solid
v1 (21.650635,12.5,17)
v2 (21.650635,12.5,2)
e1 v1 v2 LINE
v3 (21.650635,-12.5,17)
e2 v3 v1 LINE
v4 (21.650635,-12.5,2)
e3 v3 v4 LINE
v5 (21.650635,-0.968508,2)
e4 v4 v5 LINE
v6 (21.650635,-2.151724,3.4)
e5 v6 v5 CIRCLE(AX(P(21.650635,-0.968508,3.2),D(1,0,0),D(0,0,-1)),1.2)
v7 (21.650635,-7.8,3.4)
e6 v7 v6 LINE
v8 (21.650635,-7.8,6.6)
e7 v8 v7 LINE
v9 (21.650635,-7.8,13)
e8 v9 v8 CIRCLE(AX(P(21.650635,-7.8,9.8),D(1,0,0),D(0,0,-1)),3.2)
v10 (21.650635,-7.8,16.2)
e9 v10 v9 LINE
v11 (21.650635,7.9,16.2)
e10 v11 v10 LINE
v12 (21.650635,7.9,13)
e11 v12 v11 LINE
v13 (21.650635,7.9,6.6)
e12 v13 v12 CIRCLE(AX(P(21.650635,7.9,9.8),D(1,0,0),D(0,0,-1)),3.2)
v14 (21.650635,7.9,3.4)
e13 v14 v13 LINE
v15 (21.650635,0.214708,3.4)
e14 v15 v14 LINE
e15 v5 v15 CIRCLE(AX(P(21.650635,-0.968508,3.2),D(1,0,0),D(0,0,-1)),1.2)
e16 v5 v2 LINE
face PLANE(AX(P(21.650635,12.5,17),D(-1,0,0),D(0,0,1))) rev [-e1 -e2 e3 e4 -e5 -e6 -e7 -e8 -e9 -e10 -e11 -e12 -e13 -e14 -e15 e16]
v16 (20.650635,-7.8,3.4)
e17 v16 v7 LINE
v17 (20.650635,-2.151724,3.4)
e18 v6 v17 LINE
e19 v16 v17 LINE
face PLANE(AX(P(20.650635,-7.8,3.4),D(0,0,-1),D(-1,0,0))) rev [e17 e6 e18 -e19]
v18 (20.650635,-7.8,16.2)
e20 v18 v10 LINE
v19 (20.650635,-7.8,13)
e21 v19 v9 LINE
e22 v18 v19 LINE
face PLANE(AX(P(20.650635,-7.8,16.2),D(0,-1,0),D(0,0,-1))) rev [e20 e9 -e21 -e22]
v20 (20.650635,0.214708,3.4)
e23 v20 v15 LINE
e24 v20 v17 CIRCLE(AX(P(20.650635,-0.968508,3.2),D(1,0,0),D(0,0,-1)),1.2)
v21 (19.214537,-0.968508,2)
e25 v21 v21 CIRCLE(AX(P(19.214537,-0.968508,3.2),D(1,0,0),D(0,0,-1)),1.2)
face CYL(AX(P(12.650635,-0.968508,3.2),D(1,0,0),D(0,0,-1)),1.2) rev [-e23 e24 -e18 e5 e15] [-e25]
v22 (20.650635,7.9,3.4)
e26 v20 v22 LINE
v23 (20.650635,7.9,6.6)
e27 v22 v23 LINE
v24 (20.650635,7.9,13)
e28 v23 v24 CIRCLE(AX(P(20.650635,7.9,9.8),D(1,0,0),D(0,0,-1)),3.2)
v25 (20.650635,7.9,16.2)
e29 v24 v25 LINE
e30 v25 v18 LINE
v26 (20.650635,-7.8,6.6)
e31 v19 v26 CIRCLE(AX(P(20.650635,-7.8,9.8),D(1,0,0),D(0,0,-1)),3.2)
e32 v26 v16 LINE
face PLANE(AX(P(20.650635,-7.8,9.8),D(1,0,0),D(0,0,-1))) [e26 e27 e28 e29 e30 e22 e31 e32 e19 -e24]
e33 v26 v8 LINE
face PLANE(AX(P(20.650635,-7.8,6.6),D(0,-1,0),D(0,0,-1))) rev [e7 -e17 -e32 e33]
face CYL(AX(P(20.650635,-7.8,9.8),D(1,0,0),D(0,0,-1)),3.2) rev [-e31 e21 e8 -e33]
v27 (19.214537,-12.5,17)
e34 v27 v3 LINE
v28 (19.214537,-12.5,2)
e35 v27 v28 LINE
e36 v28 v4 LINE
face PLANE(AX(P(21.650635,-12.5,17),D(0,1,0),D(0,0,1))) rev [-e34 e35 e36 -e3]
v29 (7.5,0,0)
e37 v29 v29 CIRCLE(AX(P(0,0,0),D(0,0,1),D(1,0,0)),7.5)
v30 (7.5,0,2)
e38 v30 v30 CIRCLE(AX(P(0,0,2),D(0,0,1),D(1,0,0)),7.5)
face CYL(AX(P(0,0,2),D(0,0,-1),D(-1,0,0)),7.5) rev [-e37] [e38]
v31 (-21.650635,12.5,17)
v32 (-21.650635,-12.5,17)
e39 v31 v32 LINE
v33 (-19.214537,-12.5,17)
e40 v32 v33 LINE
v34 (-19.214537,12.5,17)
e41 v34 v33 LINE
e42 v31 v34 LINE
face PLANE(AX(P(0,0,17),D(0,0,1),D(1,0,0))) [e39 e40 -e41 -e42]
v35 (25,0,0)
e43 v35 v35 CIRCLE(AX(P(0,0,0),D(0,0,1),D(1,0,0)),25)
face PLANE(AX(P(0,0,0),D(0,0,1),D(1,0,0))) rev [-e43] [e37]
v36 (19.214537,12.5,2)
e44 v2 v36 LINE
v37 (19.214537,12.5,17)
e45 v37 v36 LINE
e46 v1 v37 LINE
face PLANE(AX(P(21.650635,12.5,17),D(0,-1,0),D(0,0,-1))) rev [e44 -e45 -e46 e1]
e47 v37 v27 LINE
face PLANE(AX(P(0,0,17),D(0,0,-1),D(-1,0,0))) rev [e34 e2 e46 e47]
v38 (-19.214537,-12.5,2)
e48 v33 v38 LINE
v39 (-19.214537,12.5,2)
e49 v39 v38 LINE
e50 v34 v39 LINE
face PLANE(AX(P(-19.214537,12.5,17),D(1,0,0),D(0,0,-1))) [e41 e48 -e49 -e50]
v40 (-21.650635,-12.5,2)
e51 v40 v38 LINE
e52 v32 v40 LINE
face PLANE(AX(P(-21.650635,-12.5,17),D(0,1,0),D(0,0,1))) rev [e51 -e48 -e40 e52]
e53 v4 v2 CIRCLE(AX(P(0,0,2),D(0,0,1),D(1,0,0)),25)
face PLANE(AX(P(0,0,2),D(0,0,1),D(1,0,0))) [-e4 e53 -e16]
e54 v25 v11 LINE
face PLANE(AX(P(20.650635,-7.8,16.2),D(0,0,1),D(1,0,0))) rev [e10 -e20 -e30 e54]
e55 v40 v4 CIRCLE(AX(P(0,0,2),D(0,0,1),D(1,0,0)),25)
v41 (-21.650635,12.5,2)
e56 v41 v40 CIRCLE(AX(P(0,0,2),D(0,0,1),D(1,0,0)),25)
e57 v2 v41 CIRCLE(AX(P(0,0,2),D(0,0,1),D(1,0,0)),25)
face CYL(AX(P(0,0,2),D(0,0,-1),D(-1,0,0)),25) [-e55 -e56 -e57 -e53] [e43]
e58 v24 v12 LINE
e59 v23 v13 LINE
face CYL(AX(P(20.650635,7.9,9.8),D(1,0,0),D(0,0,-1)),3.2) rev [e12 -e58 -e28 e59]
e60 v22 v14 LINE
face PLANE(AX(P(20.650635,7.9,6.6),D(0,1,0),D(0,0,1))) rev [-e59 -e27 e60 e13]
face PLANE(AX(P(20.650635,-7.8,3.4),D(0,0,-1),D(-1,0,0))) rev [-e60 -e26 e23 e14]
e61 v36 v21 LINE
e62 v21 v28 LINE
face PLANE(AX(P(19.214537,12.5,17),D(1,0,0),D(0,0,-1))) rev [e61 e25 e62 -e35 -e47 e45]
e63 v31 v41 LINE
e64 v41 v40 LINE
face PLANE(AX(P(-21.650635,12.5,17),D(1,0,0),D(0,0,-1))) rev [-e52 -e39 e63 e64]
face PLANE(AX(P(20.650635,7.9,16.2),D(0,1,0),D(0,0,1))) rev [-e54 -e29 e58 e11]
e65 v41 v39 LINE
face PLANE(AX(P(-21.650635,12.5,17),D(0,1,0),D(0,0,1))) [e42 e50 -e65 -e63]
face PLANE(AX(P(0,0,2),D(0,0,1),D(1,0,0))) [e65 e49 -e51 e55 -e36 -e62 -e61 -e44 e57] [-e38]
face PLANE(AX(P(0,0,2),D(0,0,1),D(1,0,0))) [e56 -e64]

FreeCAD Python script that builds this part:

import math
import FreeCAD as App
import Part
import Sketcher
from FreeCAD import Vector
Q = App.Units.Quantity

doc = App.newDocument("Part")
body = doc.addObject("PartDesign::Body", "Body")

sketch1 = body.newObject("Sketcher::SketchObject", "Sketch")
sketch1.AttachmentSupport = (doc.getObject("XY_Plane"), [""])
sketch1.MapMode = "FlatFace"
sketch1.addGeometry([
    Part.Circle(Vector(0, 0, 0), Vector(0, 0, 1), 25),
    Part.Circle(Vector(0, 0, 0), Vector(0, 0, 1), 8),
], False)
sketch1.addConstraint([
    Sketcher.Constraint("Coincident", 0, 3, -1, 1),
    Sketcher.Constraint("Coincident", 1, 3, -1, 1),
    Sketcher.Constraint("Diameter", 0, Q("50 mm")),
    Sketcher.Constraint("Diameter", 1, Q("15 mm")),
])
pad1 = body.newObject("PartDesign::Pad", "Pad")
pad1.Profile = sketch1
pad1.Length = 2

sketch2 = body.newObject("Sketcher::SketchObject", "Sketch001")
sketch2.AttachmentSupport = (doc.getObject("XY_Plane"), [""])
sketch2.MapMode = "FlatFace"
sketch2.AttachmentOffset = App.Placement(Vector(0, 0, 2), App.Rotation())
sketch2.addGeometry([
    Part.LineSegment(Vector(-21.7, 12.5, 0), Vector(-21.7, -12.5, 0)),
    Part.LineSegment(Vector(-21.7, -12.5, 0), Vector(-19.2, -12.5, 0)),
    Part.LineSegment(Vector(-19.2, -12.5, 0), Vector(-19.2, 12.5, 0)),
    Part.LineSegment(Vector(-19.2, 12.5, 0), Vector(-21.7, 12.5, 0)),
], False)
sketch2.addConstraint([
    Sketcher.Constraint("Coincident", 0, 2, 1, 1),
    Sketcher.Constraint("Coincident", 1, 2, 2, 1),
    Sketcher.Constraint("Coincident", 2, 2, 3, 1),
    Sketcher.Constraint("Coincident", 3, 2, 0, 1),
    Sketcher.Constraint("Vertical", 0),
    Sketcher.Constraint("Horizontal", 1),
    Sketcher.Constraint("Vertical", 2),
    Sketcher.Constraint("Horizontal", 3),
    Sketcher.Constraint("DistanceY", 0, 2, 0, 1, Q("25 mm")),
    Sketcher.Constraint("DistanceY", 0, 2, -1, 1, Q("12.5 mm")),
    Sketcher.Constraint("DistanceX", 1, 1, 1, 2, Q("2.436098 mm")),
    Sketcher.Constraint("DistanceX", 0, 2, -1, 1, Q("21.650635 mm")),
])
pad2 = body.newObject("PartDesign::Pad", "Pad001")
pad2.Profile = sketch2
pad2.Length = 15

sketch3 = body.newObject("Sketcher::SketchObject", "Sketch002")
sketch3.AttachmentSupport = (doc.getObject("XY_Plane"), [""])
sketch3.MapMode = "FlatFace"
sketch3.AttachmentOffset = App.Placement(Vector(0, 0, 2), App.Rotation())
sketch3.addGeometry([
    Part.LineSegment(Vector(19.2, 12.5, 0), Vector(19.2, -12.5, 0)),
    Part.LineSegment(Vector(19.2, -12.5, 0), Vector(21.7, -12.5, 0)),
    Part.LineSegment(Vector(21.7, -12.5, 0), Vector(21.7, 12.5, 0)),
    Part.LineSegment(Vector(21.7, 12.5, 0), Vector(19.2, 12.5, 0)),
    Part.LineSegment(Vector(-21.7, 12.5, 0), Vector(-21.7, -12.5, 0)),
    Part.LineSegment(Vector(-21.7, -12.5, 0), Vector(-19.2, -12.5, 0)),
    Part.LineSegment(Vector(-19.2, -12.5, 0), Vector(-19.2, 12.5, 0)),
    Part.LineSegment(Vector(-19.2, 12.5, 0), Vector(-21.7, 12.5, 0)),
], False)
sketch3.addConstraint([
    Sketcher.Constraint("Coincident", 0, 2, 1, 1),
    Sketcher.Constraint("Coincident", 1, 2, 2, 1),
    Sketcher.Constraint("Coincident", 2, 2, 3, 1),
    Sketcher.Constraint("Coincident", 3, 2, 0, 1),
    Sketcher.Constraint("Coincident", 4, 2, 5, 1),
    Sketcher.Constraint("Coincident", 5, 2, 6, 1),
    Sketcher.Constraint("Coincident", 6, 2, 7, 1),
    Sketcher.Constraint("Coincident", 7, 2, 4, 1),
    Sketcher.Constraint("Vertical", 0),
    Sketcher.Constraint("Horizontal", 1),
    Sketcher.Constraint("Vertical", 2),
    Sketcher.Constraint("Horizontal", 3),
    Sketcher.Constraint("Vertical", 4),
    Sketcher.Constraint("Horizontal", 5),
    Sketcher.Constraint("Vertical", 6),
    Sketcher.Constraint("Horizontal", 7),
    Sketcher.Constraint("Symmetric", 2, 2, 4, 2, -1, 1),
    Sketcher.Constraint("Symmetric", 0, 2, 6, 2, -1, 1),
    Sketcher.Constraint("Horizontal", 1, 2, 4, 2),
    Sketcher.Constraint("DistanceY", 0, 2, 0, 1, Q("25 mm")),
    Sketcher.Constraint("DistanceX", 1, 1, 1, 2, Q("2.436098 mm")),
    Sketcher.Constraint("DistanceX", 4, 2, 1, 2, Q("43.30127 mm")),
])
pad3 = body.newObject("PartDesign::Pad", "Pad002")
pad3.Profile = sketch3
pad3.Length = 15

sketch4 = body.newObject("Sketcher::SketchObject", "Sketch003")
sketch4.AttachmentSupport = (doc.getObject("YZ_Plane"), [""])
sketch4.MapMode = "FlatFace"
sketch4.AttachmentOffset = App.Placement(Vector(0, 0, 21.650635), App.Rotation())
sketch4.addGeometry([
    Part.LineSegment(Vector(7.9, 16.2, 0), Vector(-7.8, 16.2, 0)),
    Part.LineSegment(Vector(-7.8, 16.2, 0), Vector(-7.8, 13, 0)),
    Part.ArcOfCircle(Part.Circle(Vector(-7.8, 9.8, 0), Vector(0, 0, 1), 3.2), math.radians(90), math.radians(270)),
    Part.LineSegment(Vector(-7.8, 6.6, 0), Vector(-7.8, 3.4, 0)),
    Part.LineSegment(Vector(-7.8, 3.4, 0), Vector(7.9, 3.4, 0)),
    Part.LineSegment(Vector(7.9, 3.4, 0), Vector(7.9, 6.6, 0)),
    Part.ArcOfCircle(Part.Circle(Vector(7.9, 9.8, 0), Vector(0, 0, 1), 3.2), math.radians(-90), math.radians(90)),
    Part.LineSegment(Vector(7.9, 13, 0), Vector(7.9, 16.2, 0)),
], False)
sketch4.addConstraint([
    Sketcher.Constraint("Coincident", 0, 2, 1, 1),
    Sketcher.Constraint("Coincident", 1, 2, 2, 1),
    Sketcher.Constraint("Coincident", 2, 2, 3, 1),
    Sketcher.Constraint("Coincident", 3, 2, 4, 1),
    Sketcher.Constraint("Coincident", 4, 2, 5, 1),
    Sketcher.Constraint("Coincident", 5, 2, 6, 1),
    Sketcher.Constraint("Coincident", 6, 2, 7, 1),
    Sketcher.Constraint("Coincident", 7, 2, 0, 1),
    Sketcher.Constraint("Horizontal", 0),
    Sketcher.Constraint("Vertical", 1),
    Sketcher.Constraint("Vertical", 3),
    Sketcher.Constraint("Horizontal", 4),
    Sketcher.Constraint("Vertical", 5),
    Sketcher.Constraint("Vertical", 7),
    Sketcher.Constraint("Equal", 2, 6),
    Sketcher.Constraint("Horizontal", 2, 3, 6, 3),
    Sketcher.Constraint("Vertical", 2, 3, 0, 2),
    Sketcher.Constraint("Vertical", 1, 2, 2, 2),
    Sketcher.Constraint("Vertical", 6, 3, 4, 2),
    Sketcher.Constraint("Vertical", 5, 2, 6, 2),
    Sketcher.Constraint("Equal", 1, 3),
    Sketcher.Constraint("Radius", 2, Q("3.2 mm")),
    Sketcher.Constraint("DistanceX", 0, 2, 0, 1, Q("15.7 mm")),
    Sketcher.Constraint("DistanceY", 1, 2, 1, 1, Q("3.2 mm")),
    Sketcher.Constraint("DistanceY", -1, 1, 1, 2, Q("13 mm")),
    Sketcher.Constraint("DistanceX", 2, 3, -1, 1, Q("7.8 mm")),
])
pocket1 = body.newObject("PartDesign::Pocket", "Pocket")
pocket1.Profile = sketch4
pocket1.Length = 1

sketch5 = body.newObject("Sketcher::SketchObject", "Sketch004")
sketch5.AttachmentSupport = (doc.getObject("YZ_Plane"), [""])
sketch5.MapMode = "FlatFace"
sketch5.AttachmentOffset = App.Placement(Vector(0, 0, 21.650635), App.Rotation())
sketch5.addGeometry(Part.Circle(Vector(-1, 3.2, 0), Vector(0, 0, 1), 1.2), False)
sketch5.addConstraint([
    Sketcher.Constraint("Diameter", 0, Q("2.4 mm")),
    Sketcher.Constraint("DistanceY", -1, 1, 0, 3, Q("3.2 mm")),
    Sketcher.Constraint("DistanceX", 0, 3, -1, 1, Q("0.968508 mm")),
])
pocket2 = body.newObject("PartDesign::Pocket", "Pocket001")
pocket2.Profile = sketch5
pocket2.Length = 9

doc.recompute()
